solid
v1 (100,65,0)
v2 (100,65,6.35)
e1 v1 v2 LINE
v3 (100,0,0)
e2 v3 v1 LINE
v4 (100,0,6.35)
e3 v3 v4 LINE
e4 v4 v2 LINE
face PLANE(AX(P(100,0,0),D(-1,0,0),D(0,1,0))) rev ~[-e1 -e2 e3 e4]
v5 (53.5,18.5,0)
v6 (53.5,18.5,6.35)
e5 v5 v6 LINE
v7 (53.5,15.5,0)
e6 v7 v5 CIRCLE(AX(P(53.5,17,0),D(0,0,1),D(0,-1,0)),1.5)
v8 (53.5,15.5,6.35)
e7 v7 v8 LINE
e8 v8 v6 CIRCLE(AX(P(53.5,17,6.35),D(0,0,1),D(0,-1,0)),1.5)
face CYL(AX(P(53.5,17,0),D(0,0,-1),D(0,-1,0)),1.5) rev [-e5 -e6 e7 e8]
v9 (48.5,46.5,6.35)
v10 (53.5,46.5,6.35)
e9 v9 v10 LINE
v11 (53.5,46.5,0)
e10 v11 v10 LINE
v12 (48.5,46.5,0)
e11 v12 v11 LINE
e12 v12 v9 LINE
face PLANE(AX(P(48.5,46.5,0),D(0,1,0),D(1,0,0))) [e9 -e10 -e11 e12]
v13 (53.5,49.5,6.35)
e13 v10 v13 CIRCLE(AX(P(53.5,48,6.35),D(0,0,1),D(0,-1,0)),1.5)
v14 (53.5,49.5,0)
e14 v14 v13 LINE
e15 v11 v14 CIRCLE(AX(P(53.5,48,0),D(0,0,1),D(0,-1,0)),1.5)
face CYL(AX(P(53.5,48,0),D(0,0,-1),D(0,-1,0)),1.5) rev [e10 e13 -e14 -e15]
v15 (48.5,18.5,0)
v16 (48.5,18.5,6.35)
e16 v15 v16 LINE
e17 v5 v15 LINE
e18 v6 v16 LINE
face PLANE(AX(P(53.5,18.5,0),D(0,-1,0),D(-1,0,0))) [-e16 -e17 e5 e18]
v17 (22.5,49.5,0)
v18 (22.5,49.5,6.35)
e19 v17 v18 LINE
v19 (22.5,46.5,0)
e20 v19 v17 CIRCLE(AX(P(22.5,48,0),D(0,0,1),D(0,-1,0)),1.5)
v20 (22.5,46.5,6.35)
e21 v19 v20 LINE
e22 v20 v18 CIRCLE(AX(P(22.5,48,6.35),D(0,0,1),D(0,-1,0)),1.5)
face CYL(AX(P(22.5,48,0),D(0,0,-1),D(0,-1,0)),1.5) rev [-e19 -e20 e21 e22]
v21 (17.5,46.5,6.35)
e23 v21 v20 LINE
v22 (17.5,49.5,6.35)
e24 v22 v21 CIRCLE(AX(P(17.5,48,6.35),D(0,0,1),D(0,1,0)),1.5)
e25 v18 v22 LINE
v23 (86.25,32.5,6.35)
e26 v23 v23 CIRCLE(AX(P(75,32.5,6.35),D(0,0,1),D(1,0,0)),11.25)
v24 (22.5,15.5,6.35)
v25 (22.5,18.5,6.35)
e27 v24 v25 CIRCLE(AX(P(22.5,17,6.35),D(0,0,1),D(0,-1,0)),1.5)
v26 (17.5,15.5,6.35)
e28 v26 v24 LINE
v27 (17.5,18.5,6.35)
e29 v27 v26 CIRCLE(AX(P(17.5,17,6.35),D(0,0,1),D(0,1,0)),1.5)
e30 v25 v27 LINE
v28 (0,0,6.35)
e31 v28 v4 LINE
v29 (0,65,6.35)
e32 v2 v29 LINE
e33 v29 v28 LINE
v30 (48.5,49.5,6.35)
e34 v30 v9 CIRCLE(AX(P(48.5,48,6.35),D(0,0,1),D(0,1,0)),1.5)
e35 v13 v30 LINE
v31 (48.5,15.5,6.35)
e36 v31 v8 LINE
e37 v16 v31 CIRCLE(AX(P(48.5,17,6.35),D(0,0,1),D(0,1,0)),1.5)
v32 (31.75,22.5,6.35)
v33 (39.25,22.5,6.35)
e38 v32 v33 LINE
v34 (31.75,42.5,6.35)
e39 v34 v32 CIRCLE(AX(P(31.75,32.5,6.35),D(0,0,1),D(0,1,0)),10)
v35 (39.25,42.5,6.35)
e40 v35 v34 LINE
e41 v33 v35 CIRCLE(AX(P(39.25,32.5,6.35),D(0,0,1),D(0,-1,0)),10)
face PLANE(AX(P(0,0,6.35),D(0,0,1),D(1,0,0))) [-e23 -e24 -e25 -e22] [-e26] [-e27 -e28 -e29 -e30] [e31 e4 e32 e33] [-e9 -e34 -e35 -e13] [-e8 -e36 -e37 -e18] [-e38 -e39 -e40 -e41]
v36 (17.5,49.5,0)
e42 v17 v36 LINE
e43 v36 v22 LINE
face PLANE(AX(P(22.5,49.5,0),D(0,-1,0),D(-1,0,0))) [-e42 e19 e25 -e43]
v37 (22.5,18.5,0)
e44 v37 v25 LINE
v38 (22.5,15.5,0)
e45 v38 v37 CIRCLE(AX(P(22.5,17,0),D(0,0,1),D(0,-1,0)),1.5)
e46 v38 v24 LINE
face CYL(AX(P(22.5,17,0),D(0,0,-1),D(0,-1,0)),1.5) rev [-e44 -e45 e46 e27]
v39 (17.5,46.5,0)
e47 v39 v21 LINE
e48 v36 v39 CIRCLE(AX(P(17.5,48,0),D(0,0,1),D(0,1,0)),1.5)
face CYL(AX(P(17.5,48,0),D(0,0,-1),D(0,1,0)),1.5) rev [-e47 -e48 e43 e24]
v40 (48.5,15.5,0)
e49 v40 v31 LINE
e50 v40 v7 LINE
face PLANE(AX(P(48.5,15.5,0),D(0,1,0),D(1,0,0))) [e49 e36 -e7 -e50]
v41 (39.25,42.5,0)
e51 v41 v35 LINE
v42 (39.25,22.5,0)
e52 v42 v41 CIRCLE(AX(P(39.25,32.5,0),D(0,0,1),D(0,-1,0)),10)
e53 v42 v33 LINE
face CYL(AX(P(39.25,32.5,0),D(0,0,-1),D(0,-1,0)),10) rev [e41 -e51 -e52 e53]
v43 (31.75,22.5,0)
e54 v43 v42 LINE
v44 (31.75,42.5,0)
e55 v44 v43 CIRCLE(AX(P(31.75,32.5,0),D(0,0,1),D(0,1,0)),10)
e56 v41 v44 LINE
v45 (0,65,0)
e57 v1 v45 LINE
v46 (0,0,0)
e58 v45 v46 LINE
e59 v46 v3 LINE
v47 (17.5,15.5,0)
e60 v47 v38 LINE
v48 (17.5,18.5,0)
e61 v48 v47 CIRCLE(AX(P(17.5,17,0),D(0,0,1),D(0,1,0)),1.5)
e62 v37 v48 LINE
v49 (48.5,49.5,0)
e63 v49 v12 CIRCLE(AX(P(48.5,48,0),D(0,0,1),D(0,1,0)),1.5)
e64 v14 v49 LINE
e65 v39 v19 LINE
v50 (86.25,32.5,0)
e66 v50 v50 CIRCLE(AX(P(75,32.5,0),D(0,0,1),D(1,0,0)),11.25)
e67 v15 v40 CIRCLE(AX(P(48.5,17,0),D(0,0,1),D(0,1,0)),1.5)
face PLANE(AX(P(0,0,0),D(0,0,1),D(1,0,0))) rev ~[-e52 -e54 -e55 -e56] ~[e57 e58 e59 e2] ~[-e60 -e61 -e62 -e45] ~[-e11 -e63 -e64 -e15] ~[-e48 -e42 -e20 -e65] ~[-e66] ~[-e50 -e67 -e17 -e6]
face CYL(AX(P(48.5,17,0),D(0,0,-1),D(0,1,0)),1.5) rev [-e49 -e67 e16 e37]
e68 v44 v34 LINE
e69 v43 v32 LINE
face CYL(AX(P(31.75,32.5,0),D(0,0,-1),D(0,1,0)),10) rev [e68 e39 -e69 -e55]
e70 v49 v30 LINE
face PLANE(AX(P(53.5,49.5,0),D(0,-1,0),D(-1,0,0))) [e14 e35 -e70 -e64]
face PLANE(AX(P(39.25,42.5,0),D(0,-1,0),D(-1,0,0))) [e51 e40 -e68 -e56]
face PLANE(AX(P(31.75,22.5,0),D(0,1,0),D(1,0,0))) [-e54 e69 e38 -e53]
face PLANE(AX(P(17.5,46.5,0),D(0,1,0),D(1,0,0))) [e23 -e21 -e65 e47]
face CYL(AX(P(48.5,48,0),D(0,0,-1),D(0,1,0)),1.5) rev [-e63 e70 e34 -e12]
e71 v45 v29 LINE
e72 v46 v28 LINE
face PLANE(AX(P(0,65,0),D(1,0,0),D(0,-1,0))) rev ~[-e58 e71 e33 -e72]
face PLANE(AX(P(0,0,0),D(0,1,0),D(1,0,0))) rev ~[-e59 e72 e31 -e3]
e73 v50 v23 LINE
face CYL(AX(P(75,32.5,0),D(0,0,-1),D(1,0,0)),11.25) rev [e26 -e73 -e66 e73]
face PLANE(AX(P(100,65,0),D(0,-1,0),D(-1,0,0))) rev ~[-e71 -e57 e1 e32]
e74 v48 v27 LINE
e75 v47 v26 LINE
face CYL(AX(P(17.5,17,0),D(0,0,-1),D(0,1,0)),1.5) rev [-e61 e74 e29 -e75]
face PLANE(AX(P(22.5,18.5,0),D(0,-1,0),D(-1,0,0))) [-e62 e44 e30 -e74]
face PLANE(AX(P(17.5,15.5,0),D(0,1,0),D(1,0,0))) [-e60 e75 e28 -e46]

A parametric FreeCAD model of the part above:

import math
import FreeCAD as App
import Part
import Sketcher

V = App.Vector
Q = App.Units.Quantity


def add_polygon(sketch, points):
    """Adds a closed chain of lines whose ends are joined by coincident constraints."""
    first, n = sketch.GeometryCount, len(points)
    for a, b in zip(points, points[1:] + points[:1]):
        sketch.addGeometry(Part.LineSegment(App.Vector(*a, 0), App.Vector(*b, 0)), False)
    for i in range(n):
        sketch.addConstraint(Sketcher.Constraint("Coincident", first + i, 2, first + (i + 1) % n, 1))

doc = App.newDocument("Part")
body = doc.addObject("PartDesign::Body", "Body")

# Sketch on XY plane
sketch1 = body.newObject("Sketcher::SketchObject", "Sketch")
sketch1.AttachmentSupport = (doc.getObject("XY_Plane"), [""])
sketch1.MapMode = "FlatFace"
add_polygon(sketch1, [(0, 65), (0, 0), (100, 0), (100, 65)])  # lines 0-3
sketch1.addGeometry(Part.LineSegment(V(22.5, 15.5, 0), V(17.5, 15.5, 0)), False)  # 4
sketch1.addGeometry(Part.ArcOfCircle(Part.Circle(V(17.5, 17, 0), V(0, 0, 1), 1.5), math.radians(90), math.radians(270)), False)  # 5
sketch1.addGeometry(Part.LineSegment(V(17.5, 18.5, 0), V(22.5, 18.5, 0)), False)  # 6
sketch1.addGeometry(Part.ArcOfCircle(Part.Circle(V(22.5, 17, 0), V(0, 0, 1), 1.5), math.radians(-90), math.radians(90)), False)  # 7
sketch1.addGeometry(Part.LineSegment(V(53.5, 15.5, 0), V(48.5, 15.5, 0)), False)  # 8
sketch1.addGeometry(Part.ArcOfCircle(Part.Circle(V(48.5, 17, 0), V(0, 0, 1), 1.5), math.radians(90), math.radians(270)), False)  # 9
sketch1.addGeometry(Part.LineSegment(V(48.5, 18.5, 0), V(53.5, 18.5, 0)), False)  # 10
sketch1.addGeometry(Part.ArcOfCircle(Part.Circle(V(53.5, 17, 0), V(0, 0, 1), 1.5), math.radians(-90), math.radians(90)), False)  # 11
sketch1.addGeometry(Part.LineSegment(V(22.5, 46.5, 0), V(17.5, 46.5, 0)), False)  # 12
sketch1.addGeometry(Part.ArcOfCircle(Part.Circle(V(17.5, 48, 0), V(0, 0, 1), 1.5), math.radians(90), math.radians(270)), False)  # 13
sketch1.addGeometry(Part.LineSegment(V(17.5, 49.5, 0), V(22.5, 49.5, 0)), False)  # 14
sketch1.addGeometry(Part.ArcOfCircle(Part.Circle(V(22.5, 48, 0), V(0, 0, 1), 1.5), math.radians(-90), math.radians(90)), False)  # 15
sketch1.addGeometry(Part.LineSegment(V(39.2, 22.5, 0), V(31.8, 22.5, 0)), False)  # 16
sketch1.addGeometry(Part.ArcOfCircle(Part.Circle(V(31.8, 32.5, 0), V(0, 0, 1), 10), math.radians(90), math.radians(270)), False)  # 17
sketch1.addGeometry(Part.LineSegment(V(31.8, 42.5, 0), V(39.2, 42.5, 0)), False)  # 18
sketch1.addGeometry(Part.ArcOfCircle(Part.Circle(V(39.2, 32.5, 0), V(0, 0, 1), 10), math.radians(-90), math.radians(90)), False)  # 19
sketch1.addGeometry(Part.LineSegment(V(48.5, 49.5, 0), V(53.5, 49.5, 0)), False)  # 20
sketch1.addGeometry(Part.ArcOfCircle(Part.Circle(V(53.5, 48, 0), V(0, 0, 1), 1.5), math.radians(-90), math.radians(90)), False)  # 21
sketch1.addGeometry(Part.LineSegment(V(53.5, 46.5, 0), V(48.5, 46.5, 0)), False)  # 22
sketch1.addGeometry(Part.ArcOfCircle(Part.Circle(V(48.5, 48, 0), V(0, 0, 1), 1.5), math.radians(90), math.radians(270)), False)  # 23
sketch1.addGeometry(Part.Circle(V(75, 32.5, 0), V(0, 0, 1), 11.2), False)  # 24
sketch1.addConstraint([
    Sketcher.Constraint("Tangent", 4, 2, 5, 2),
    Sketcher.Constraint("Tangent", 5, 1, 6, 1),
    Sketcher.Constraint("Tangent", 6, 2, 7, 2),
    Sketcher.Constraint("Tangent", 7, 1, 4, 1),
    Sketcher.Constraint("Tangent", 8, 2, 9, 2),
    Sketcher.Constraint("Tangent", 9, 1, 10, 1),
    Sketcher.Constraint("Tangent", 10, 2, 11, 2),
    Sketcher.Constraint("Tangent", 11, 1, 8, 1),
    Sketcher.Constraint("Tangent", 12, 2, 13, 2),
    Sketcher.Constraint("Tangent", 13, 1, 14, 1),
    Sketcher.Constraint("Tangent", 14, 2, 15, 2),
    Sketcher.Constraint("Tangent", 15, 1, 12, 1),
    Sketcher.Constraint("Tangent", 16, 2, 17, 2),
    Sketcher.Constraint("Tangent", 17, 1, 18, 1),
    Sketcher.Constraint("Tangent", 18, 2, 19, 2),
    Sketcher.Constraint("Tangent", 19, 1, 16, 1),
    Sketcher.Constraint("Tangent", 20, 2, 21, 2),
    Sketcher.Constraint("Tangent", 21, 1, 22, 1),
    Sketcher.Constraint("Tangent", 22, 2, 23, 2),
    Sketcher.Constraint("Tangent", 23, 1, 20, 1),
    Sketcher.Constraint("Vertical", 0),
    Sketcher.Constraint("Horizontal", 1),
    Sketcher.Constraint("Vertical", 2),
    Sketcher.Constraint("Horizontal", 3),
    Sketcher.Constraint("Horizontal", 4),
    Sketcher.Constraint("Horizontal", 6),
    Sketcher.Constraint("Horizontal", 8),
    Sketcher.Constraint("Horizontal", 10),
    Sketcher.Constraint("Horizontal", 12),
    Sketcher.Constraint("Horizontal", 14),
    Sketcher.Constraint("Horizontal", 16),
    Sketcher.Constraint("Horizontal", 18),
    Sketcher.Constraint("Horizontal", 20),
    Sketcher.Constraint("Horizontal", 22),
    Sketcher.Constraint("Coincident", 0, 2, -1, 1),
    Sketcher.Constraint("Equal", 7, 9),
    Sketcher.Constraint("Equal", 11, 13),
    Sketcher.Constraint("Equal", 15, 21),
    Sketcher.Constraint("Horizontal", 7, 3, 9, 3),
    Sketcher.Constraint("Horizontal", 15, 3, 21, 3),
    Sketcher.Constraint("Horizontal", 19, 3, 24, 3),
    Sketcher.Constraint("Vertical", 5, 3, 13, 3),
    Sketcher.Constraint("Vertical", 7, 3, 15, 3),
    Sketcher.Constraint("Vertical", 11, 3, 21, 3),
    Sketcher.Constraint("Vertical", 9, 3, 23, 3),
    Sketcher.Constraint("Equal", 6, 8),
    Sketcher.Constraint("Radius", 17, Q("10 mm")),
    Sketcher.Constraint("Diameter", 24, Q("22.5 mm")),
    Sketcher.Constraint("Radius", 5, Q("1.5 mm")),
    Sketcher.Constraint("DistanceX", 1, 1, 1, 2, Q("100 mm")),
    Sketcher.Constraint("DistanceX", 4, 2, 4, 1, Q("5 mm")),
    Sketcher.Constraint("DistanceY", 0, 2, 0, 1, Q("65 mm")),
    Sketcher.Constraint("DistanceX", 16, 2, 16, 1, Q("7.5 mm")),
    Sketcher.Constraint("DistanceX", -1, 1, 24, 3, Q("75 mm")),
    Sketcher.Constraint("DistanceX", 5, 3, 9, 3, Q("31 mm")),
    Sketcher.Constraint("DistanceY", 5, 3, 13, 3, Q("31 mm")),
    Sketcher.Constraint("DistanceX", -1, 1, 7, 3, Q("22.5 mm")),
    Sketcher.Constraint("DistanceY", -1, 1, 4, 2, Q("15.5 mm")),
    Sketcher.Constraint("DistanceY", -1, 1, 16, 2, Q("22.5 mm")),
    Sketcher.Constraint("DistanceX", -1, 1, 17, 3, Q("31.75 mm")),
])
pad1 = body.newObject("PartDesign::Pad", "Pad")
pad1.Profile = sketch1
pad1.Length = 6.35

doc.recompute()
